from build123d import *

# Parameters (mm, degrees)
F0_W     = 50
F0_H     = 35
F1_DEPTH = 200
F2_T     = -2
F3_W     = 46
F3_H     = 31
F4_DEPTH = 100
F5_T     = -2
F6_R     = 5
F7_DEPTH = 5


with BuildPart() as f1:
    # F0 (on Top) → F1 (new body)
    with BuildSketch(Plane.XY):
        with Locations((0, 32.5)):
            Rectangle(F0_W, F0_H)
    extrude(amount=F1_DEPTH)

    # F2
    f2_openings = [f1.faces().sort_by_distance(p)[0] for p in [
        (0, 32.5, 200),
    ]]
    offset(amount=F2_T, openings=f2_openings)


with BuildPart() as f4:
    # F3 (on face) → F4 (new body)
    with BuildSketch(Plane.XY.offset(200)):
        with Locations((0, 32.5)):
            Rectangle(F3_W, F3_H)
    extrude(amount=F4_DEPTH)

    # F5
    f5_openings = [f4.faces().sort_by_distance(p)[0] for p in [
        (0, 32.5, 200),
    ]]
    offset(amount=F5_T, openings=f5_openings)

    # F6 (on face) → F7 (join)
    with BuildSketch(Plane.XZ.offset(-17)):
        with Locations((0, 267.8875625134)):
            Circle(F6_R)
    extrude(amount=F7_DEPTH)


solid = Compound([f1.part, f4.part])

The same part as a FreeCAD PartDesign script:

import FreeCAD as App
import Part
import Sketcher

V = App.Vector


def faces_at(feature, points):
    """Names of the faces that lie closest to the given points."""
    faces = feature.Shape.Faces
    near = lambda p: min(range(len(faces)), key=lambda i: faces[i].distToShape(Part.Vertex(*p))[0])
    return sorted({f"Face{near(p) + 1}" for p in points})

doc = App.newDocument("Part")
body = doc.addObject("PartDesign::Body", "Body")

# Sketch on XY plane
sketch1 = doc.addObject("Sketcher::SketchObject", "Sketch")
body.addObject(sketch1)
sketch1.AttachmentSupport = (doc.XY_Plane, [""])
sketch1.MapMode = "FlatFace"
sketch1.addGeometry([
    Part.LineSegment(V(-25, 50, 0), V(-25, 15, 0)),
    Part.LineSegment(V(-25, 15, 0), V(25, 15, 0)),
    Part.LineSegment(V(25, 15, 0), V(25, 50, 0)),
    Part.LineSegment(V(25, 50, 0), V(-25, 50, 0)),
], False)
sketch1.addConstraint([
    Sketcher.Constraint("Coincident", 0, 2, 1, 1),
    Sketcher.Constraint("Coincident", 1, 2, 2, 1),
    Sketcher.Constraint("Coincident", 2, 2, 3, 1),
    Sketcher.Constraint("Coincident", 3, 2, 0, 1),
    Sketcher.Constraint("Vertical", 0),
    Sketcher.Constraint("Horizontal", 1),
    Sketcher.Constraint("Vertical", 2),
    Sketcher.Constraint("Horizontal", 3),
    Sketcher.Constraint("DistanceX", 1, 1, 1, 2, 50.0),
    Sketcher.Constraint("DistanceY", 0, 2, 0, 1, 35.0),
    Sketcher.Constraint("DistanceX", 0, 2, -1, 1, 25.0),
    Sketcher.Constraint("DistanceY", -1, 1, 0, 2, 15.0),
])
pad1 = doc.addObject("PartDesign::Pad", "Pad")
body.addObject(pad1)
pad1.Profile = sketch1
pad1.Length = 200
doc.recompute()

thickness = doc.addObject("PartDesign::Thickness", "Thickness")
body.addObject(thickness)
thickness.Base = (pad1, faces_at(pad1, [(0, 32.5, 200)]))
thickness.Value = 2
thickness.Reversed = True
thickness.Join = "Arc"
body2 = doc.addObject("PartDesign::Body", "Body001")

# Sketch on XY plane
sketch2 = doc.addObject("Sketcher::SketchObject", "Sketch001")
body2.addObject(sketch2)
sketch2.AttachmentSupport = (doc.getObject("XY_Plane001"), [""])
sketch2.MapMode = "FlatFace"
sketch2.AttachmentOffset = App.Placement(V(0, 0, 200), App.Rotation())
sketch2.addGeometry([
    Part.LineSegment(V(-23, 48, 0), V(-23, 17, 0)),
    Part.LineSegment(V(-23, 17, 0), V(23, 17, 0)),
    Part.LineSegment(V(23, 17, 0), V(23, 48, 0)),
    Part.LineSegment(V(23, 48, 0), V(-23, 48, 0)),
], False)
sketch2.addConstraint([
    Sketcher.Constraint("Coincident", 0, 2, 1, 1),
    Sketcher.Constraint("Coincident", 1, 2, 2, 1),
    Sketcher.Constraint("Coincident", 2, 2, 3, 1),
    Sketcher.Constraint("Coincident", 3, 2, 0, 1),
    Sketcher.Constraint("Vertical", 0),
    Sketcher.Constraint("Horizontal", 1),
    Sketcher.Constraint("Vertical", 2),
    Sketcher.Constraint("Horizontal", 3),
    Sketcher.Constraint("DistanceX", 1, 1, 1, 2, 46.0),
    Sketcher.Constraint("DistanceY", 0, 2, 0, 1, 31.0),
    Sketcher.Constraint("DistanceX", 0, 2, -1, 1, 23.0),
    Sketcher.Constraint("DistanceY", -1, 1, 0, 2, 17.0),
])
pad2 = doc.addObject("PartDesign::Pad", "Pad001")
body2.addObject(pad2)
pad2.Profile = sketch2
pad2.Length = 100
doc.recompute()

thickness2 = doc.addObject("PartDesign::Thickness", "Thickness001")
body2.addObject(thickness2)
thickness2.Base = (pad2, faces_at(pad2, [(0, 32.5, 200)]))
thickness2.Value = 2
thickness2.Reversed = True
thickness2.Join = "Arc"

# Sketch on XZ plane
sketch3 = doc.addObject("Sketcher::SketchObject", "Sketch002")
body2.addObject(sketch3)
sketch3.AttachmentSupport = (doc.getObject("XZ_Plane001"), [""])
sketch3.MapMode = "FlatFace"
sketch3.AttachmentOffset = App.Placement(V(0, 0, -17), App.Rotation())
sketch3.addGeometry(Part.Circle(V(0, 268, 0), V(0, 0, 1), 5), False)
sketch3.addConstraint([
    Sketcher.Constraint("PointOnObject", 0, 3, -2),
    Sketcher.Constraint("Diameter", 0, 10.0),
    Sketcher.Constraint("DistanceY", -1, 1, 0, 3, 267.887563),
])
pad3 = doc.addObject("PartDesign::Pad", "Pad002")
body2.addObject(pad3)
pad3.Profile = sketch3
pad3.Length = 5

doc.recompute()
